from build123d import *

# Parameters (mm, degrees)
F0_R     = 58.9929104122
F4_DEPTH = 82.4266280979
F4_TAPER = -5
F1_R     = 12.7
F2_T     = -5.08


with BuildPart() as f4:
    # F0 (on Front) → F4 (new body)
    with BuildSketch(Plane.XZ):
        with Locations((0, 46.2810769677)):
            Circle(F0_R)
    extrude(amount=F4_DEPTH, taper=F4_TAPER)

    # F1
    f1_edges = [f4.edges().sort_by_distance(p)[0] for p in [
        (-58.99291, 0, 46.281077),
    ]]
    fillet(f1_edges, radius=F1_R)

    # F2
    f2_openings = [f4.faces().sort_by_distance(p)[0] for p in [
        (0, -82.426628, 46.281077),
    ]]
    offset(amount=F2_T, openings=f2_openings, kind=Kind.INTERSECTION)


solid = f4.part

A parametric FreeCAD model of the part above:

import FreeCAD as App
import Part
import Sketcher
Q = App.Units.Quantity


def edges_at(feature, points):
    """Names of the edges that pass closest to the given points."""
    edges = feature.Shape.Edges
    near = lambda p: min(range(len(edges)), key=lambda i: edges[i].distToShape(Part.Vertex(*p))[0])
    return sorted({f"Edge{near(p) + 1}" for p in points})


def faces_at(feature, points):
    """Names of the faces that lie closest to the given points."""
    faces = feature.Shape.Faces
    near = lambda p: min(range(len(faces)), key=lambda i: faces[i].distToShape(Part.Vertex(*p))[0])
    return sorted({f"Face{near(p) + 1}" for p in points})

doc = App.newDocument("Part")
body = doc.addObject("PartDesign::Body", "Body")

# Sketch on XZ plane
sketch1 = body.newObject("Sketcher::SketchObject", "Sketch")
sketch1.AttachmentSupport = (doc.getObject("XZ_Plane"), [""])
sketch1.MapMode = "FlatFace"
sketch1.addGeometry(Part.Circle(App.Vector(0, 46.281077, 0), App.Vector(0, 0, 1), 58.99291), False)
sketch1.addConstraint(Sketcher.Constraint("PointOnObject", 0, 3, -2))
sketch1.addConstraint(Sketcher.Constraint("Diameter", 0, 117.985821))
sketch1.addConstraint(Sketcher.Constraint("DistanceY", -1, 1, 0, 3, 46.281077))
pad1 = body.newObject("PartDesign::Pad", "Pad")
pad1.Profile = sketch1
pad1.Length = 82.426628
pad1.TaperAngle = 5
doc.recompute()

fillet = body.newObject("PartDesign::Fillet", "Fillet")
fillet.Base = (pad1, edges_at(pad1, [(-58.993, 0, 46.281)]))
fillet.Radius = Q("0.5 in")
doc.recompute()

thickness = body.newObject("PartDesign::Thickness", "Thickness")
thickness.Base = (fillet, faces_at(fillet, [(0, -82.427, 46.281)]))
thickness.Value = Q("0.2 in")
thickness.Reversed = True
thickness.Join = "Intersection"

doc.recompute()
